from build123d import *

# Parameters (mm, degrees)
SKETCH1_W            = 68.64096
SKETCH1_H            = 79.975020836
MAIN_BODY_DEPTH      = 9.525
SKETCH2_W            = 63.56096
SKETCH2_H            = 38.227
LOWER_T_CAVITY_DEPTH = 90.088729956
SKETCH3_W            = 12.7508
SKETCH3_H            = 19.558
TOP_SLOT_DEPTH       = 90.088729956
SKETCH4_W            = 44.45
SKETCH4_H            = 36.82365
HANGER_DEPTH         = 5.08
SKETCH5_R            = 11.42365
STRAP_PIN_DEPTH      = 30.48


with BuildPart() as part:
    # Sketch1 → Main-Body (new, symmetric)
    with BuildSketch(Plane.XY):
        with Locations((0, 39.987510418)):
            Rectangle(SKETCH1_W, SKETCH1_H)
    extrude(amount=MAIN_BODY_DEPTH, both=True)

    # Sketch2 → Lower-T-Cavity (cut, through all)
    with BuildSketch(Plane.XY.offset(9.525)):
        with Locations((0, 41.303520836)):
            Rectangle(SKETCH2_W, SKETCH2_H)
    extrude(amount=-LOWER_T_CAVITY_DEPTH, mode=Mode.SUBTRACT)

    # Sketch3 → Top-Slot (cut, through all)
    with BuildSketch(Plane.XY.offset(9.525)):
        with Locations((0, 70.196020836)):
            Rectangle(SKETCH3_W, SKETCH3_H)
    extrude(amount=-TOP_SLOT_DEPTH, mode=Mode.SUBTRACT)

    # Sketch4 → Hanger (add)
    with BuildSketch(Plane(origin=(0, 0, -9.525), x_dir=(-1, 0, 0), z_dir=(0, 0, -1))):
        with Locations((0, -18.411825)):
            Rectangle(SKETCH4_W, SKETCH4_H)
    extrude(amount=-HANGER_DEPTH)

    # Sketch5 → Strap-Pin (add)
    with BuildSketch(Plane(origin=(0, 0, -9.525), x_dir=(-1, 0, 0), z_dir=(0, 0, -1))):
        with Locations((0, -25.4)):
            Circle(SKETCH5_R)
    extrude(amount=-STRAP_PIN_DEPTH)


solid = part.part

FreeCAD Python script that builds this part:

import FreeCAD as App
import Part
import Sketcher
Q = App.Units.Quantity

doc = App.newDocument("Part")
body = doc.addObject("PartDesign::Body", "Body")

sketch1 = doc.addObject("Sketcher::SketchObject", "Sketch")
body.addObject(sketch1)
sketch1.AttachmentSupport = (doc.XY_Plane, [""])
sketch1.MapMode = "FlatFace"
sketch1.addGeometry(Part.LineSegment(App.Vector(-34.32048, 79.975021, 0), App.Vector(-34.32048, 0, 0)), False)
sketch1.addGeometry(Part.LineSegment(App.Vector(-34.32048, 0, 0), App.Vector(34.32048, 0, 0)), False)
sketch1.addGeometry(Part.LineSegment(App.Vector(34.32048, 0, 0), App.Vector(34.32048, 79.975021, 0)), False)
sketch1.addGeometry(Part.LineSegment(App.Vector(34.32048, 79.975021, 0), App.Vector(-34.32048, 79.975021, 0)), False)
sketch1.addConstraint(Sketcher.Constraint("Coincident", 0, 2, 1, 1))
sketch1.addConstraint(Sketcher.Constraint("Coincident", 1, 2, 2, 1))
sketch1.addConstraint(Sketcher.Constraint("Coincident", 2, 2, 3, 1))
sketch1.addConstraint(Sketcher.Constraint("Coincident", 3, 2, 0, 1))
sketch1.addConstraint(Sketcher.Constraint("Vertical", 0))
sketch1.addConstraint(Sketcher.Constraint("Horizontal", 1))
sketch1.addConstraint(Sketcher.Constraint("Vertical", 2))
sketch1.addConstraint(Sketcher.Constraint("Horizontal", 3))
sketch1.addConstraint(Sketcher.Constraint("Symmetric", 0, 2, 1, 2, -1, 1))
sketch1.addConstraint(Sketcher.Constraint("DistanceX", 1, 1, 1, 2, Q("2.7024 in")))
sketch1.addConstraint(Sketcher.Constraint("DistanceY", 0, 2, 0, 1, Q("79.975021 mm")))
pad1 = doc.addObject("PartDesign::Pad", "Pad")
body.addObject(pad1)
pad1.Profile = sketch1
pad1.Length = Q("0.75 in")
pad1.Midplane = True

sketch2 = doc.addObject("Sketcher::SketchObject", "Sketch001")
body.addObject(sketch2)
sketch2.AttachmentSupport = (doc.XY_Plane, [""])
sketch2.MapMode = "FlatFace"
sketch2.AttachmentOffset = App.Placement(App.Vector(0, 0, 0.375 * 25.4), App.Rotation())
sketch2.addGeometry(Part.LineSegment(App.Vector(-31.78048, 60.417021, 0), App.Vector(-31.78048, 22.190021, 0)), False)
sketch2.addGeometry(Part.LineSegment(App.Vector(-31.78048, 22.190021, 0), App.Vector(31.78048, 22.190021, 0)), False)
sketch2.addGeometry(Part.LineSegment(App.Vector(31.78048, 22.190021, 0), App.Vector(31.78048, 60.417021, 0)), False)
sketch2.addGeometry(Part.LineSegment(App.Vector(31.78048, 60.417021, 0), App.Vector(-31.78048, 60.417021, 0)), False)
sketch2.addConstraint(Sketcher.Constraint("Coincident", 0, 2, 1, 1))
sketch2.addConstraint(Sketcher.Constraint("Coincident", 1, 2, 2, 1))
sketch2.addConstraint(Sketcher.Constraint("Coincident", 2, 2, 3, 1))
sketch2.addConstraint(Sketcher.Constraint("Coincident", 3, 2, 0, 1))
sketch2.addConstraint(Sketcher.Constraint("Vertical", 0))
sketch2.addConstraint(Sketcher.Constraint("Horizontal", 1))
sketch2.addConstraint(Sketcher.Constraint("Vertical", 2))
sketch2.addConstraint(Sketcher.Constraint("Horizontal", 3))
sketch2.addConstraint(Sketcher.Constraint("DistanceY", 0, 2, 0, 1, Q("1.505 in")))
sketch2.addConstraint(Sketcher.Constraint("DistanceX", 1, 1, 1, 2, Q("2.5024 in")))
sketch2.addConstraint(Sketcher.Constraint("DistanceX", 0, 2, -1, 1, Q("1.2512 in")))
sketch2.addConstraint(Sketcher.Constraint("DistanceY", -1, 1, 0, 2, Q("22.190021 mm")))
pocket1 = doc.addObject("PartDesign::Pocket", "Pocket")
body.addObject(pocket1)
pocket1.Profile = sketch2
pocket1.Type = "ThroughAll"

sketch3 = doc.addObject("Sketcher::SketchObject", "Sketch002")
body.addObject(sketch3)
sketch3.AttachmentSupport = (doc.XY_Plane, [""])
sketch3.MapMode = "FlatFace"
sketch3.AttachmentOffset = App.Placement(App.Vector(0, 0, 0.375 * 25.4), App.Rotation())
sketch3.addGeometry(Part.LineSegment(App.Vector(-6.3754, 79.975021, 0), App.Vector(-6.3754, 60.417021, 0)), False)
sketch3.addGeometry(Part.LineSegment(App.Vector(-6.3754, 60.417021, 0), App.Vector(6.3754, 60.417021, 0)), False)
sketch3.addGeometry(Part.LineSegment(App.Vector(6.3754, 60.417021, 0), App.Vector(6.3754, 79.975021, 0)), False)
sketch3.addGeometry(Part.LineSegment(App.Vector(6.3754, 79.975021, 0), App.Vector(-6.3754, 79.975021, 0)), False)
sketch3.addConstraint(Sketcher.Constraint("Coincident", 0, 2, 1, 1))
sketch3.addConstraint(Sketcher.Constraint("Coincident", 1, 2, 2, 1))
sketch3.addConstraint(Sketcher.Constraint("Coincident", 2, 2, 3, 1))
sketch3.addConstraint(Sketcher.Constraint("Coincident", 3, 2, 0, 1))
sketch3.addConstraint(Sketcher.Constraint("Vertical", 0))
sketch3.addConstraint(Sketcher.Constraint("Horizontal", 1))
sketch3.addConstraint(Sketcher.Constraint("Vertical", 2))
sketch3.addConstraint(Sketcher.Constraint("Horizontal", 3))
sketch3.addConstraint(Sketcher.Constraint("DistanceY", 0, 2, 0, 1, Q("0.77 in")))
sketch3.addConstraint(Sketcher.Constraint("DistanceX", 1, 1, 1, 2, Q("0.502 in")))
sketch3.addConstraint(Sketcher.Constraint("DistanceX", 0, 2, -1, 1, Q("0.251 in")))
sketch3.addConstraint(Sketcher.Constraint("DistanceY", -1, 1, 0, 2, Q("60.417021 mm")))
pocket2 = doc.addObject("PartDesign::Pocket", "Pocket001")
body.addObject(pocket2)
pocket2.Profile = sketch3
pocket2.Type = "ThroughAll"

sketch4 = doc.addObject("Sketcher::SketchObject", "Sketch003")
body.addObject(sketch4)
sketch4.AttachmentSupport = (doc.XY_Plane, [""])
sketch4.MapMode = "FlatFace"
sketch4.AttachmentOffset = App.Placement(App.Vector(0, 0, -0.375 * 25.4), App.Rotation())
sketch4.addGeometry(Part.LineSegment(App.Vector(22.225, 0, 0), App.Vector(22.225, -36.82365, 0)), False)
sketch4.addGeometry(Part.LineSegment(App.Vector(22.225, -36.82365, 0), App.Vector(-22.225, -36.82365, 0)), False)
sketch4.addGeometry(Part.LineSegment(App.Vector(-22.225, -36.82365, 0), App.Vector(-22.225, 0, 0)), False)
sketch4.addGeometry(Part.LineSegment(App.Vector(-22.225, 0, 0), App.Vector(22.225, 0, 0)), False)
sketch4.addConstraint(Sketcher.Constraint("Coincident", 0, 2, 1, 1))
sketch4.addConstraint(Sketcher.Constraint("Coincident", 1, 2, 2, 1))
sketch4.addConstraint(Sketcher.Constraint("Coincident", 2, 2, 3, 1))
sketch4.addConstraint(Sketcher.Constraint("Coincident", 3, 2, 0, 1))
sketch4.addConstraint(Sketcher.Constraint("Vertical", 0))
sketch4.addConstraint(Sketcher.Constraint("Horizontal", 1))
sketch4.addConstraint(Sketcher.Constraint("Vertical", 2))
sketch4.addConstraint(Sketcher.Constraint("Horizontal", 3))
sketch4.addConstraint(Sketcher.Constraint("Symmetric", 2, 2, 3, 2, -1, 1))
sketch4.addConstraint(Sketcher.Constraint("DistanceX", 1, 2, 1, 1, Q("1.75 in")))
sketch4.addConstraint(Sketcher.Constraint("DistanceY", 0, 2, 0, 1, Q("36.82365 mm")))
pad2 = doc.addObject("PartDesign::Pad", "Pad001")
body.addObject(pad2)
pad2.Profile = sketch4
pad2.Length = Q("0.2 in")

sketch5 = doc.addObject("Sketcher::SketchObject", "Sketch004")
body.addObject(sketch5)
sketch5.AttachmentSupport = (doc.XY_Plane, [""])
sketch5.MapMode = "FlatFace"
sketch5.AttachmentOffset = App.Placement(App.Vector(0, 0, -0.375 * 25.4), App.Rotation())
sketch5.addGeometry(Part.Circle(App.Vector(0, -25.4, 0), App.Vector(0, 0, 1), 11.42365), False)
sketch5.addConstraint(Sketcher.Constraint("PointOnObject", 0, 3, -2))
sketch5.addConstraint(Sketcher.Constraint("DistanceY", 0, 3, -1, 1, Q("1 in")))
sketch5.addConstraint(Sketcher.Constraint("Diameter", 0, Q("0.8995 in")))
pad3 = doc.addObject("PartDesign::Pad", "Pad002")
body.addObject(pad3)
pad3.Profile = sketch5
pad3.Length = Q("1.2 in")

doc.recompute()
